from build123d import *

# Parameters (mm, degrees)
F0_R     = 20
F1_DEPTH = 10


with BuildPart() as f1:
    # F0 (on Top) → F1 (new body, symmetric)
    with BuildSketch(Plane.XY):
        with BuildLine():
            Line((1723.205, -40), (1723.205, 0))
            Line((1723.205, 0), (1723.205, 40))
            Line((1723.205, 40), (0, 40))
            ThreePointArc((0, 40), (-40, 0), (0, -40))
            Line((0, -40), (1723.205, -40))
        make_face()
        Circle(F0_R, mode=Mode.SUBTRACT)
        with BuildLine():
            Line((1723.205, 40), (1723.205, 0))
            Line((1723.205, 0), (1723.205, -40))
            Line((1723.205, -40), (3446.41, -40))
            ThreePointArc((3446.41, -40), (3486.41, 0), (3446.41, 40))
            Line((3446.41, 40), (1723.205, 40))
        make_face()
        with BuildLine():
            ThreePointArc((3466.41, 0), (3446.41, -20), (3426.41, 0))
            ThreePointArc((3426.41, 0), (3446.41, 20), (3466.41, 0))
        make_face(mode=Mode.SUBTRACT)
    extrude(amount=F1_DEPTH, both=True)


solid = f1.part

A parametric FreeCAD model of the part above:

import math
import FreeCAD as App
import Part
import Sketcher
from FreeCAD import Vector
Q = App.Units.Quantity

doc = App.newDocument("Part")
body = doc.addObject("PartDesign::Body", "Body")

sketch1 = body.newObject("Sketcher::SketchObject", "Sketch")
sketch1.AttachmentSupport = (doc.getObject("XY_Plane"), [""])
sketch1.MapMode = "FlatFace"
sketch1.addGeometry(Part.LineSegment(Vector(0, -40, 0), Vector(3446, -40, 0)), False)
sketch1.addGeometry(Part.ArcOfCircle(Part.Circle(Vector(3446, 0, 0), Vector(0, 0, 1), 40), math.radians(-90), math.radians(90)), False)
sketch1.addGeometry(Part.LineSegment(Vector(3446, 40, 0), Vector(0, 40, 0)), False)
sketch1.addGeometry(Part.ArcOfCircle(Part.Circle(Vector(0, 0, 0), Vector(0, 0, 1), 40), math.radians(90), math.radians(270)), False)
sketch1.addGeometry(Part.Circle(Vector(0, 0, 0), Vector(0, 0, 1), 20), False)
sketch1.addGeometry(Part.Circle(Vector(3446, 0, 0), Vector(0, 0, 1), 20), False)
sketch1.addConstraint(Sketcher.Constraint("Tangent", 0, 2, 1, 1))
sketch1.addConstraint(Sketcher.Constraint("Tangent", 1, 2, 2, 1))
sketch1.addConstraint(Sketcher.Constraint("Tangent", 2, 2, 3, 1))
sketch1.addConstraint(Sketcher.Constraint("Tangent", 3, 2, 0, 1))
sketch1.addConstraint(Sketcher.Constraint("Horizontal", 0))
sketch1.addConstraint(Sketcher.Constraint("Horizontal", 2))
sketch1.addConstraint(Sketcher.Constraint("Coincident", 3, 3, -1, 1))
sketch1.addConstraint(Sketcher.Constraint("Coincident", 4, 3, -1, 1))
sketch1.addConstraint(Sketcher.Constraint("Coincident", 5, 3, 1, 3))
sketch1.addConstraint(Sketcher.Constraint("Equal", 4, 5))
sketch1.addConstraint(Sketcher.Constraint("Diameter", 4, Q("40 mm")))
sketch1.addConstraint(Sketcher.Constraint("Radius", 1, Q("40 mm")))
sketch1.addConstraint(Sketcher.Constraint("DistanceX", 0, 1, 0, 2, Q("3446.41 mm")))
pad1 = body.newObject("PartDesign::Pad", "Pad")
pad1.Profile = sketch1
pad1.Length = 20
pad1.Midplane = True

doc.recompute()
